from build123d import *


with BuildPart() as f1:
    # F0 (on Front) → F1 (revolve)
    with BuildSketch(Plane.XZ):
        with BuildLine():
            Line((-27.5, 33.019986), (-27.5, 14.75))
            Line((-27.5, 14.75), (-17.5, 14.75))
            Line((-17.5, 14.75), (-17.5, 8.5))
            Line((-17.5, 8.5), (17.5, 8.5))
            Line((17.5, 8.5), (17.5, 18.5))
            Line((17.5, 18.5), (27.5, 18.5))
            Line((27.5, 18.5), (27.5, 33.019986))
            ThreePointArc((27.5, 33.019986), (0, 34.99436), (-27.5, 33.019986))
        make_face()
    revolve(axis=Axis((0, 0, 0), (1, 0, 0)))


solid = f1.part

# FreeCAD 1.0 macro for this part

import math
import FreeCAD as App
import Part
import Sketcher
from FreeCAD import Vector

doc = App.newDocument("Part")
params = doc.addObject("Spreadsheet::Sheet", "Params")
for row, (alias, value) in enumerate([
    ("sketch1_width", "10 mm"),
    ("sketch1_width2", "35 mm"),
    ("sketch1_height", "6.25 mm"),
    ("revolution_angle", "360 deg"),
], start=1):
    params.set(f"A{row}", alias)
    params.set(f"B{row}", "=" + value)
    params.setAlias(f"B{row}", alias)

body = doc.addObject("PartDesign::Body", "Body")

# Sketch on XZ plane
sketch1 = body.newObject("Sketcher::SketchObject", "Sketch")
sketch1.AttachmentSupport = (doc.getObject("XZ_Plane"), [""])
sketch1.MapMode = "FlatFace"
sketch1.addGeometry([
    Part.LineSegment(Vector(-28, 33, 0), Vector(-28, 15, 0)),  # 0
    Part.LineSegment(Vector(-28, 15, 0), Vector(-18, 15, 0)),  # 1
    Part.LineSegment(Vector(-18, 15, 0), Vector(-18, 8, 0)),  # 2
    Part.LineSegment(Vector(-18, 8, 0), Vector(18, 8, 0)),  # 3
    Part.LineSegment(Vector(18, 8, 0), Vector(18, 18, 0)),  # 4
    Part.LineSegment(Vector(18, 18, 0), Vector(28, 18, 0)),  # 5
    Part.LineSegment(Vector(28, 18, 0), Vector(28, 33, 0)),  # 6
    Part.ArcOfCircle(Part.Circle(Vector(0, -158, 0), Vector(0, 0, 1), 193), math.radians(81.79), math.radians(98.21)),  # 7
], False)
sketch1.addConstraint([
    Sketcher.Constraint("Coincident", 0, 2, 1, 1),
    Sketcher.Constraint("Coincident", 1, 2, 2, 1),
    Sketcher.Constraint("Coincident", 2, 2, 3, 1),
    Sketcher.Constraint("Coincident", 3, 2, 4, 1),
    Sketcher.Constraint("Coincident", 4, 2, 5, 1),
    Sketcher.Constraint("Coincident", 5, 2, 6, 1),
    Sketcher.Constraint("Coincident", 6, 2, 7, 1),
    Sketcher.Constraint("Coincident", 7, 2, 0, 1),
    Sketcher.Constraint("Vertical", 0),
    Sketcher.Constraint("Horizontal", 1),
    Sketcher.Constraint("Vertical", 2),
    Sketcher.Constraint("Horizontal", 3),
    Sketcher.Constraint("Vertical", 4),
    Sketcher.Constraint("Horizontal", 5),
    Sketcher.Constraint("Vertical", 6),
    Sketcher.Constraint("Symmetric", 6, 2, 7, 2, -2),
    Sketcher.Constraint("Equal", 1, 5),
    Sketcher.Constraint("Equal", 5, 4),
    Sketcher.Constraint("DistanceX", 1, 1, 1, 2, 10.0),
    Sketcher.Constraint("DistanceX", 3, 1, 3, 2, 35.0),
    Sketcher.Constraint("DistanceY", 2, 2, 2, 1, 6.25),
    Sketcher.Constraint("DistanceY", -1, 1, 2, 2, 8.5),
    Sketcher.Constraint("Radius", 7, 192.503587),
    Sketcher.Constraint("DistanceY", 0, 2, 0, 1, 18.269986),
])
sketch1.setExpression("Constraints[18]", "Params.sketch1_width")
sketch1.setExpression("Constraints[19]", "Params.sketch1_width2")
sketch1.setExpression("Constraints[20]", "Params.sketch1_height")
revolution = body.newObject("PartDesign::Revolution", "Revolution")
revolution.Profile = sketch1
revolution.ReferenceAxis = (sketch1, ["H_Axis"])
revolution.setExpression("Angle", "Params.revolution_angle")

doc.recompute()
